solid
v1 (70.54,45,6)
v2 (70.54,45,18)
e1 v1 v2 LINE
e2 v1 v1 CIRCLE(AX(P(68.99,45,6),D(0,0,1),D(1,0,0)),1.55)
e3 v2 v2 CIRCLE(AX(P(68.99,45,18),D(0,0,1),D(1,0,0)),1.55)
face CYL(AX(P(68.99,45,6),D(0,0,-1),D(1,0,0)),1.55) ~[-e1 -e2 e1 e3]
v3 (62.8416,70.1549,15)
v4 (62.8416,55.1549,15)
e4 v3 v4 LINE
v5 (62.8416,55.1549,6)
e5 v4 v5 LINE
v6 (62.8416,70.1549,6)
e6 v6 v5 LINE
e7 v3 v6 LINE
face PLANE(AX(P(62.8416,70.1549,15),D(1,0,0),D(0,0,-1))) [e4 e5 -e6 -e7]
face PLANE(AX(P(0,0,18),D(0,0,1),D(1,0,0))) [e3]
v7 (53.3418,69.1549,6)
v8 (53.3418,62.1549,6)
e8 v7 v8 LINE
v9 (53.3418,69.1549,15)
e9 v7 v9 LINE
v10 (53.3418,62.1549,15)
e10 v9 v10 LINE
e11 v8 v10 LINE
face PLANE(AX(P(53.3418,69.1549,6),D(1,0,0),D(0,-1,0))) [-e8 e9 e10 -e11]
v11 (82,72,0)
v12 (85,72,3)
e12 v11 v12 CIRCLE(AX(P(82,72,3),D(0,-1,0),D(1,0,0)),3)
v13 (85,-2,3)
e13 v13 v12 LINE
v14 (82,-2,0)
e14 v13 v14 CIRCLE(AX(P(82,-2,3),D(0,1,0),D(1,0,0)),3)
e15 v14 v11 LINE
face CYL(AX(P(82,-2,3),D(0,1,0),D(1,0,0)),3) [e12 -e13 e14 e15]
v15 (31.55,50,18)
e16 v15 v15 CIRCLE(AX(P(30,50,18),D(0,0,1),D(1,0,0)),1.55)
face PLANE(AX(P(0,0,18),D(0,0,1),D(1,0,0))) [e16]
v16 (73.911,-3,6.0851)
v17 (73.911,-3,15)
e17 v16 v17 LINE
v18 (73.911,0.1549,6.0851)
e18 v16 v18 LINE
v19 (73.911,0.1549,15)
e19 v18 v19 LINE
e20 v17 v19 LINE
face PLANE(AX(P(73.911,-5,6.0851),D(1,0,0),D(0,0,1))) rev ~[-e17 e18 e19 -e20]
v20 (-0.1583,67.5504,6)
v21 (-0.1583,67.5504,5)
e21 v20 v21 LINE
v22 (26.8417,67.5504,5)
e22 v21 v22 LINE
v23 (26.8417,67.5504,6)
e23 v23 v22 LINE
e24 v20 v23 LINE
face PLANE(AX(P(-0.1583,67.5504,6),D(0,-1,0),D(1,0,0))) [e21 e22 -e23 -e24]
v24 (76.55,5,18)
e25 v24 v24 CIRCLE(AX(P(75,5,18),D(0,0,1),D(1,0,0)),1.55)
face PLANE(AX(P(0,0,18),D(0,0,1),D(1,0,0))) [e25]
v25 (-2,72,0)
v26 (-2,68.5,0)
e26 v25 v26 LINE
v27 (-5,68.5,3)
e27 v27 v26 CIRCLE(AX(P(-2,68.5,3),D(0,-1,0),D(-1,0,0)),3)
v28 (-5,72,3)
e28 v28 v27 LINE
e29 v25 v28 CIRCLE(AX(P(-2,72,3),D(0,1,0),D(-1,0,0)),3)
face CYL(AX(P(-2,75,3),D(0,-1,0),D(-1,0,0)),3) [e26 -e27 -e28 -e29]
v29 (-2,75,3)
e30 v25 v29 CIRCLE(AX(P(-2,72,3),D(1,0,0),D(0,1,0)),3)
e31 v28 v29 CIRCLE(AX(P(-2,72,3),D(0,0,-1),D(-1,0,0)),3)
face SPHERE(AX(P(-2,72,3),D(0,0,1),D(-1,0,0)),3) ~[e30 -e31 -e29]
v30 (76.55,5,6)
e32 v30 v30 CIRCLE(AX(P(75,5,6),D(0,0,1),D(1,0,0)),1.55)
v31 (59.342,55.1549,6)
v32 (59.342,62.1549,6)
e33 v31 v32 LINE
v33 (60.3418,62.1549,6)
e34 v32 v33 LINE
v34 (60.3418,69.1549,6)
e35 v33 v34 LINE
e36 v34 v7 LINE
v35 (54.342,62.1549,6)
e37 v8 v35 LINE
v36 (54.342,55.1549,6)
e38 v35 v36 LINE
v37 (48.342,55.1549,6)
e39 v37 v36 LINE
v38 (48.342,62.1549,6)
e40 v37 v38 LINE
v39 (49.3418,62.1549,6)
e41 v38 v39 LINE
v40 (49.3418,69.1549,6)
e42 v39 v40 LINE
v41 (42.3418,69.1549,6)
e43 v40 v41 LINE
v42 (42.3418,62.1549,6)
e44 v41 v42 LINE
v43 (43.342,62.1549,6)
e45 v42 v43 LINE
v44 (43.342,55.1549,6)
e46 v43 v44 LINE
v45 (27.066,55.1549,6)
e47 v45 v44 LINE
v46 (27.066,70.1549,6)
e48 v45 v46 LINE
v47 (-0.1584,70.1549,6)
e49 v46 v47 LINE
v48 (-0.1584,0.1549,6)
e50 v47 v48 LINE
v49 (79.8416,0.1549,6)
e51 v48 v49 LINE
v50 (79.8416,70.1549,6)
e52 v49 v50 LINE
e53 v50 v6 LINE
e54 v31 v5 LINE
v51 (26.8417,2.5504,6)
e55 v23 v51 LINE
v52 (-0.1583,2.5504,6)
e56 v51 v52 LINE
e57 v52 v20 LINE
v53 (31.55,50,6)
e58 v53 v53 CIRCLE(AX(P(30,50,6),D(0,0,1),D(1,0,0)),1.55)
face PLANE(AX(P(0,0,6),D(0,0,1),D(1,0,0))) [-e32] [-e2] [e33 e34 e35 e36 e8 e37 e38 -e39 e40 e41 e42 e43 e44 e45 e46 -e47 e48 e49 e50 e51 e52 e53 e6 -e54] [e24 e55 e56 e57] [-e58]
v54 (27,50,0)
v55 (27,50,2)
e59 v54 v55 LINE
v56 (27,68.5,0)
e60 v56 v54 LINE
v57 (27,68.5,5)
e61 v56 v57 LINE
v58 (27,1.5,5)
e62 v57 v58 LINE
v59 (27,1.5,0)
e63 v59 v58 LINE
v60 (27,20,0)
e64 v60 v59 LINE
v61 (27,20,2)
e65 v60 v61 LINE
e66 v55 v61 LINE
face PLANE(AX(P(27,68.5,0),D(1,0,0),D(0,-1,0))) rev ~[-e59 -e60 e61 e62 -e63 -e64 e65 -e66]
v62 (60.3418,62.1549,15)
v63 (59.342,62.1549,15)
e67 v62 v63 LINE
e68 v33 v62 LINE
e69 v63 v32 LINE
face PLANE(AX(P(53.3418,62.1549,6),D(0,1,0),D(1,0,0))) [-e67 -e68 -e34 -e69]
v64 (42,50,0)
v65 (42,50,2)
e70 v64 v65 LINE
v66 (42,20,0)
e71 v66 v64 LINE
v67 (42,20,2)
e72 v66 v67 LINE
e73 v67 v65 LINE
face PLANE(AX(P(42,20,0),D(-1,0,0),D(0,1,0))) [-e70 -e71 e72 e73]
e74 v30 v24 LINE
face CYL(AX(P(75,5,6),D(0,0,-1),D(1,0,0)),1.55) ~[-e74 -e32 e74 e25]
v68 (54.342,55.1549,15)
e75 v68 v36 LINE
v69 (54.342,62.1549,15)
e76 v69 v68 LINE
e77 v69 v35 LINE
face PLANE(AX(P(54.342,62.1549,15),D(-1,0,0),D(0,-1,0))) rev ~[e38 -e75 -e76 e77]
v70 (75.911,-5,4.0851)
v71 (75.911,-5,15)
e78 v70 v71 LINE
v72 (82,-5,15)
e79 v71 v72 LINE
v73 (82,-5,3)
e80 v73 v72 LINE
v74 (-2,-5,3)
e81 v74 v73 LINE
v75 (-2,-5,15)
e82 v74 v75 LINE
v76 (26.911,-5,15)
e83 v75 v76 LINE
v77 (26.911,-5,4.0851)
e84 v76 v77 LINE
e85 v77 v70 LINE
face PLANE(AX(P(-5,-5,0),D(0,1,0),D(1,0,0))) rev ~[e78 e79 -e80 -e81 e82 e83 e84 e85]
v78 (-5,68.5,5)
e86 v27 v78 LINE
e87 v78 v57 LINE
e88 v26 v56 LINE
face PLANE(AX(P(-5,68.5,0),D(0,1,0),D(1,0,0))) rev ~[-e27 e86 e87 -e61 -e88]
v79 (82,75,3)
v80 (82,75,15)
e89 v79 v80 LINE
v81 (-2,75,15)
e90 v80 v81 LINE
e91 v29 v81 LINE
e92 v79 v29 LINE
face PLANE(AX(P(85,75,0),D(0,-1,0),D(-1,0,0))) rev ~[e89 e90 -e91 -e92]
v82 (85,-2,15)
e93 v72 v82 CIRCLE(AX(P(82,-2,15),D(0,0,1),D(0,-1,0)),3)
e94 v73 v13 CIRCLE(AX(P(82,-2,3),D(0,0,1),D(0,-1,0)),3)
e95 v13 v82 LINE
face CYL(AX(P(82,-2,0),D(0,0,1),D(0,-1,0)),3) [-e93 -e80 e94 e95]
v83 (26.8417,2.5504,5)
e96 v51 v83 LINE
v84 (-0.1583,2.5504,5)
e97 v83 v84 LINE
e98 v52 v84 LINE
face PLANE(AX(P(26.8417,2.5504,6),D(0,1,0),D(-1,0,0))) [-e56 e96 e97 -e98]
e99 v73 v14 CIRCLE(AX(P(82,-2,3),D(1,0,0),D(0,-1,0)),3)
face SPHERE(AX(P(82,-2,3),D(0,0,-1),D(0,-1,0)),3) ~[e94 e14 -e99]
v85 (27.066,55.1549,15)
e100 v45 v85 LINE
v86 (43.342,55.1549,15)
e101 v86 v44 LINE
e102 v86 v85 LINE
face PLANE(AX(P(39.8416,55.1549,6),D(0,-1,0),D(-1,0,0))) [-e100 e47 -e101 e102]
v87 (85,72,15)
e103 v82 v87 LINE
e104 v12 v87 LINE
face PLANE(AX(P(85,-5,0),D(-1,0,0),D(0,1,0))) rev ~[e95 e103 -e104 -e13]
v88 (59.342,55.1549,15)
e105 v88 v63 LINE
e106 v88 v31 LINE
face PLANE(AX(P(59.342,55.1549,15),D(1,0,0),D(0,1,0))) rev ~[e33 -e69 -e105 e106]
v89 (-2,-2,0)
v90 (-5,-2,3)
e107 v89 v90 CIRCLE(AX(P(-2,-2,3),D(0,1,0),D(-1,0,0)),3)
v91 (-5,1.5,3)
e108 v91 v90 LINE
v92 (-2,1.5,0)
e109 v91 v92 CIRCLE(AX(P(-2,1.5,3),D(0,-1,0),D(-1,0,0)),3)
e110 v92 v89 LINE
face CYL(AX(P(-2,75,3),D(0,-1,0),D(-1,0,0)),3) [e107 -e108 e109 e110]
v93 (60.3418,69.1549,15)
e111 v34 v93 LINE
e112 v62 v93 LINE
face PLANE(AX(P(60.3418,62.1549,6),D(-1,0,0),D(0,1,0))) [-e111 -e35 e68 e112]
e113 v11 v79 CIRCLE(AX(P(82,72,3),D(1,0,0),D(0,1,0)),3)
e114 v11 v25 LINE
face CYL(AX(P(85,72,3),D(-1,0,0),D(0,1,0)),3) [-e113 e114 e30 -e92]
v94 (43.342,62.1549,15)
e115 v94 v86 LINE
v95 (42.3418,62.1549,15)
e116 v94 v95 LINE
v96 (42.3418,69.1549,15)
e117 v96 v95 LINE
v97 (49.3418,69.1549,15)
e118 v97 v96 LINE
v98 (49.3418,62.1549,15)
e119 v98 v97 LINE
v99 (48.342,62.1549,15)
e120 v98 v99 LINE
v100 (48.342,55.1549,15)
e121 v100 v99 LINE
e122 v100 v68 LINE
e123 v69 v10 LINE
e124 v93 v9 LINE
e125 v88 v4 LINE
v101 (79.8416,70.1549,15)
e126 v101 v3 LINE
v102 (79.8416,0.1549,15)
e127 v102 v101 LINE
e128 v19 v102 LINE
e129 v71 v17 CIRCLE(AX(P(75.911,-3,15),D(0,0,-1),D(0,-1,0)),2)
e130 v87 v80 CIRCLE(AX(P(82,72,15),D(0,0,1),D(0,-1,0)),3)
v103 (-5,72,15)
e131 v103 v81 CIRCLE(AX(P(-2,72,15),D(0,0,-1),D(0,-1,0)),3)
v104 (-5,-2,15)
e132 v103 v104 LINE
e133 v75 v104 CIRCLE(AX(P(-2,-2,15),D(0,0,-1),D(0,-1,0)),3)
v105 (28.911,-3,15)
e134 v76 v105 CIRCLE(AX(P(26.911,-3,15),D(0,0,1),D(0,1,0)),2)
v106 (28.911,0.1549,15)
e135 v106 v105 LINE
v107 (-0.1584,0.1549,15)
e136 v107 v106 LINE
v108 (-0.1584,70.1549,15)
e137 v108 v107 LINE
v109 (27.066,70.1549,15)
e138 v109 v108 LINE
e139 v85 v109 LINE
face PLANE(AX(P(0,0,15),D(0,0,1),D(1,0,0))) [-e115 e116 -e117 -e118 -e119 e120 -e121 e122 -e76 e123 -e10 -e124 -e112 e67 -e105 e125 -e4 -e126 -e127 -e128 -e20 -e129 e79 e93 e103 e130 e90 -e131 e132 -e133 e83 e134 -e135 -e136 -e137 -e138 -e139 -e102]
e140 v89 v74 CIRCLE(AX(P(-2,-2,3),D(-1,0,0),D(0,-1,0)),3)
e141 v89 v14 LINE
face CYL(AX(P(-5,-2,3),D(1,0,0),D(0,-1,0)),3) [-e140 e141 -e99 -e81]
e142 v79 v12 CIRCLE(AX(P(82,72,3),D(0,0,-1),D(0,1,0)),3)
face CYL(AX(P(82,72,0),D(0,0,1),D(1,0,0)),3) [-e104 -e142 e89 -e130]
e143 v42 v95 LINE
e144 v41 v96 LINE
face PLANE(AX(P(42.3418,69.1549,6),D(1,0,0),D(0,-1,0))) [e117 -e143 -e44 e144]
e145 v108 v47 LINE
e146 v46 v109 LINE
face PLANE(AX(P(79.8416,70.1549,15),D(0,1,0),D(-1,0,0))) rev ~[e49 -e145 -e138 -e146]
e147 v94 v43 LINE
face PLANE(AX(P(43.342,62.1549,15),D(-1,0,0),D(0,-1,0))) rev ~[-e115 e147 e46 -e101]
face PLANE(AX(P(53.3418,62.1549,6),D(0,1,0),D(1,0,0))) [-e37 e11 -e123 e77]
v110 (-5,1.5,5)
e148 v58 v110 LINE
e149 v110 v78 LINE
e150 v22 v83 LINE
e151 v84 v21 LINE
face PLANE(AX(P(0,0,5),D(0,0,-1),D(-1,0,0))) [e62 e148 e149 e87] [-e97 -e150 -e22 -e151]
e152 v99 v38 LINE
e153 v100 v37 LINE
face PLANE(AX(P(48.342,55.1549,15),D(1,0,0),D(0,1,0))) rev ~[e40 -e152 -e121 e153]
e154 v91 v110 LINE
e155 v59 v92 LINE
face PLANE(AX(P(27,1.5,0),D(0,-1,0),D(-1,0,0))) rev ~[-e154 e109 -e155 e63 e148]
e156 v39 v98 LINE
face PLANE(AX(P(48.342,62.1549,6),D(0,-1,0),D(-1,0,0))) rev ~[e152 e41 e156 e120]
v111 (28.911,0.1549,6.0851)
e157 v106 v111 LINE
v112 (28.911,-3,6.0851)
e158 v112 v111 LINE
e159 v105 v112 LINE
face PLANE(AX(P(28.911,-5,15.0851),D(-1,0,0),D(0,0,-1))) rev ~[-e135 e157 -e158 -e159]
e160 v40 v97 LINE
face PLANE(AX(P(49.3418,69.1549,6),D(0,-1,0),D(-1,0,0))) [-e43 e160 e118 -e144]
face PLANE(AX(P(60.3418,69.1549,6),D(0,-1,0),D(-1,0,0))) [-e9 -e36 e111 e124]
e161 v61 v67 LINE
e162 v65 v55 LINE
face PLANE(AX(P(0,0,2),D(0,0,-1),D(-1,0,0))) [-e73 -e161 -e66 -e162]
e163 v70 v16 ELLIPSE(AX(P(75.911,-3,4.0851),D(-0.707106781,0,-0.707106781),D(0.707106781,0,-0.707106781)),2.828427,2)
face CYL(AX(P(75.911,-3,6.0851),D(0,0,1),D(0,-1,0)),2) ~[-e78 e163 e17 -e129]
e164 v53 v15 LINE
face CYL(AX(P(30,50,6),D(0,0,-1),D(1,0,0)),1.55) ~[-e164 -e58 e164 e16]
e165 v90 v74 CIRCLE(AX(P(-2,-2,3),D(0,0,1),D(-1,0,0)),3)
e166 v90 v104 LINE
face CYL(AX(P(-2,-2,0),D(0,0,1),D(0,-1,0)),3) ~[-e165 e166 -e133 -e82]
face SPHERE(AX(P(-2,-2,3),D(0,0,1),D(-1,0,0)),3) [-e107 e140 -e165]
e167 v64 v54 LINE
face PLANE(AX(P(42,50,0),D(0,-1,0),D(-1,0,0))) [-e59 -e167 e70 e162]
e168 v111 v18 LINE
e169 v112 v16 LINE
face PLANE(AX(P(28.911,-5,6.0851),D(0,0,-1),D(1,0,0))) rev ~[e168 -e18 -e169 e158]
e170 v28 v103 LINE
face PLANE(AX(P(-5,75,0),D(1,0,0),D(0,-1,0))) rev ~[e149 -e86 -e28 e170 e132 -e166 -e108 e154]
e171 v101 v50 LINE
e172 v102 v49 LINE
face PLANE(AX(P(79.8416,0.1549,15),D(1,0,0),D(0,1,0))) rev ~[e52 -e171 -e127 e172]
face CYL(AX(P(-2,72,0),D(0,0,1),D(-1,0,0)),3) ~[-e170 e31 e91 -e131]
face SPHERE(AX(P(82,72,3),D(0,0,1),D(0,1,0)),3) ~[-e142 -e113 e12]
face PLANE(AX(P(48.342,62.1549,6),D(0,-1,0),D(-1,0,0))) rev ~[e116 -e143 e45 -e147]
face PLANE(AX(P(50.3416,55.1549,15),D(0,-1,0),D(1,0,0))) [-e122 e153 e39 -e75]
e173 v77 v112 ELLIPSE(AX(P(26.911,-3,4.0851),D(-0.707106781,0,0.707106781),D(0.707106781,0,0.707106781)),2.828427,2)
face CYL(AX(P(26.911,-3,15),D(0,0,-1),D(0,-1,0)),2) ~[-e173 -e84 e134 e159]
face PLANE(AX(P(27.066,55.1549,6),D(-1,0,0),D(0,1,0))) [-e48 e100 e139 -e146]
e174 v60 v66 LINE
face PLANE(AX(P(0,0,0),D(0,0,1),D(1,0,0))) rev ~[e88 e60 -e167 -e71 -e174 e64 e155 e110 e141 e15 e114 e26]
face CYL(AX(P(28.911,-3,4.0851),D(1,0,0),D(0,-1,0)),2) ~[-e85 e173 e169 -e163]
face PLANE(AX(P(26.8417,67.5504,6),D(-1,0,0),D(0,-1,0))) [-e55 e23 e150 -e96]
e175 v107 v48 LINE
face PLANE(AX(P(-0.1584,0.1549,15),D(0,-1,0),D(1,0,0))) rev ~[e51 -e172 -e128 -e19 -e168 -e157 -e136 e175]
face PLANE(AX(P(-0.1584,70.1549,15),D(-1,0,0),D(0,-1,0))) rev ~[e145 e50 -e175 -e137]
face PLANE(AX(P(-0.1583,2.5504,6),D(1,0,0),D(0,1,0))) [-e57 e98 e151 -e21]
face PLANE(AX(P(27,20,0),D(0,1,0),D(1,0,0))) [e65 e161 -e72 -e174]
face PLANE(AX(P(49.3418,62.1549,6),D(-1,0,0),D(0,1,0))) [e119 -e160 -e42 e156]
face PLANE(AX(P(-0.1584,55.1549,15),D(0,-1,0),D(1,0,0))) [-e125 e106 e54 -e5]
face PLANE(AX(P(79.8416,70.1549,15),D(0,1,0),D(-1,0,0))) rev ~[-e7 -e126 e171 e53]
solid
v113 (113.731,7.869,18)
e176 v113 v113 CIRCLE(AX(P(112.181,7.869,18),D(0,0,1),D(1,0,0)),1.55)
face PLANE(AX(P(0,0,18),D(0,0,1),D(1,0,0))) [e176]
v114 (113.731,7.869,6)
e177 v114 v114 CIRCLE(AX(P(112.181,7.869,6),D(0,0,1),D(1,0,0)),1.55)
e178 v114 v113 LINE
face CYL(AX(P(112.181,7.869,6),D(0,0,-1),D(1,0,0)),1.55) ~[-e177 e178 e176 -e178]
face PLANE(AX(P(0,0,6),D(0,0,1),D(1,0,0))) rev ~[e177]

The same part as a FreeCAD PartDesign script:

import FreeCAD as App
import Part
import Sketcher
from FreeCAD import Vector
Q = App.Units.Quantity


def edges_at(feature, points):
    """Names of the edges that pass closest to the given points."""
    edges = feature.Shape.Edges
    near = lambda p: min(range(len(edges)), key=lambda i: edges[i].distToShape(Part.Vertex(*p))[0])
    return sorted({f"Edge{near(p) + 1}" for p in points})


def add_polygon(sketch, points):
    """Adds a closed chain of lines whose ends are joined by coincident constraints."""
    first, n = sketch.GeometryCount, len(points)
    for a, b in zip(points, points[1:] + points[:1]):
        sketch.addGeometry(Part.LineSegment(App.Vector(*a, 0), App.Vector(*b, 0)), False)
    for i in range(n):
        sketch.addConstraint(Sketcher.Constraint("Coincident", first + i, 2, first + (i + 1) % n, 1))

doc = App.newDocument("Part")
body = doc.addObject("PartDesign::Body", "Body")
body.AllowCompound = True

sketch1 = doc.addObject("Sketcher::SketchObject", "Sketch")
body.addObject(sketch1)
sketch1.AttachmentSupport = (doc.XY_Plane, [""])
sketch1.MapMode = "FlatFace"
add_polygon(sketch1, [(-5, 75), (-5, -5), (85, -5), (85, 75)])
sketch1.addConstraint([
    Sketcher.Constraint("Vertical", 0),
    Sketcher.Constraint("Horizontal", 1),
    Sketcher.Constraint("Vertical", 2),
    Sketcher.Constraint("Horizontal", 3),
    Sketcher.Constraint("DistanceX", 1, 1, 1, 2, Q("90 mm")),
    Sketcher.Constraint("DistanceY", 0, 2, 0, 1, Q("80 mm")),
    Sketcher.Constraint("DistanceX", 0, 2, -1, 1, Q("5 mm")),
    Sketcher.Constraint("DistanceY", 0, 2, -1, 1, Q("5 mm")),
])
pad1 = doc.addObject("PartDesign::Pad", "Pad")
body.addObject(pad1)
pad1.Profile = sketch1
pad1.Length = 15

sketch2 = doc.addObject("Sketcher::SketchObject", "Sketch001")
body.addObject(sketch2)
sketch2.AttachmentSupport = (doc.XY_Plane, [""])
sketch2.MapMode = "FlatFace"
sketch2.AttachmentOffset = App.Placement(Vector(0, 0, 15), App.Rotation())
add_polygon(sketch2, [(0, 70), (0, 0), (80, 0), (80, 70)])
sketch2.addConstraint([
    Sketcher.Constraint("Vertical", 0),
    Sketcher.Constraint("Horizontal", 1),
    Sketcher.Constraint("Vertical", 2),
    Sketcher.Constraint("Horizontal", 3),
    Sketcher.Constraint("DistanceX", 1, 1, 1, 2, Q("80 mm")),
    Sketcher.Constraint("DistanceY", 0, 2, 0, 1, Q("70 mm")),
    Sketcher.Constraint("DistanceY", -1, 1, 0, 2, Q("0.155 mm")),
    Sketcher.Constraint("DistanceX", 0, 2, -1, 1, Q("0.1584 mm")),
])
pocket1 = doc.addObject("PartDesign::Pocket", "Pocket")
body.addObject(pocket1)
pocket1.Profile = sketch2
pocket1.Length = 9

sketch3 = doc.addObject("Sketcher::SketchObject", "Sketch002")
body.addObject(sketch3)
sketch3.AttachmentSupport = (doc.XY_Plane, [""])
sketch3.MapMode = "FlatFace"
sketch3.AttachmentOffset = App.Placement(Vector(0, 0, 6), App.Rotation())
sketch3.addGeometry([
    Part.Circle(Vector(75, 5, 0), Vector(0, 0, 1), 1.6),
    Part.Circle(Vector(30, 50, 0), Vector(0, 0, 1), 1.6),
    Part.Circle(Vector(69, 45, 0), Vector(0, 0, 1), 1.6),
    Part.Circle(Vector(112.2, 7.9, 0), Vector(0, 0, 1), 1.6),
], False)
sketch3.addConstraint([
    Sketcher.Constraint("Equal", 0, 1),
    Sketcher.Constraint("Equal", 1, 2),
    Sketcher.Constraint("Equal", 2, 3),
    Sketcher.Constraint("Diameter", 0, Q("3.1 mm")),
    Sketcher.Constraint("DistanceX", -1, 1, 0, 3, Q("75 mm")),
    Sketcher.Constraint("DistanceY", -1, 1, 0, 3, Q("5 mm")),
    Sketcher.Constraint("DistanceX", -1, 1, 1, 3, Q("30 mm")),
    Sketcher.Constraint("DistanceY", -1, 1, 1, 3, Q("50 mm")),
    Sketcher.Constraint("DistanceY", -1, 1, 2, 3, Q("45 mm")),
    Sketcher.Constraint("DistanceX", -1, 1, 2, 3, Q("68.99 mm")),
    Sketcher.Constraint("DistanceX", -1, 1, 3, 3, Q("112.181 mm")),
    Sketcher.Constraint("DistanceY", -1, 1, 3, 3, Q("7.869 mm")),
])
pad2 = doc.addObject("PartDesign::Pad", "Pad001")
body.addObject(pad2)
pad2.Profile = sketch3
pad2.Length = 12

sketch4 = doc.addObject("Sketcher::SketchObject", "Sketch003")
body.addObject(sketch4)
sketch4.AttachmentSupport = (doc.XY_Plane, [""])
sketch4.MapMode = "FlatFace"
sketch4.AttachmentOffset = App.Placement(Vector(0, 0, 6), App.Rotation())
add_polygon(sketch4, [(27, 68), (0, 68), (0, 3), (27, 3)])
sketch4.addConstraint([
    Sketcher.Constraint("Horizontal", 0),
    Sketcher.Constraint("Vertical", 1),
    Sketcher.Constraint("Horizontal", 2),
    Sketcher.Constraint("Vertical", 3),
    Sketcher.Constraint("DistanceX", 0, 2, 0, 1, Q("27 mm")),
    Sketcher.Constraint("DistanceY", 1, 2, 1, 1, Q("65 mm")),
    Sketcher.Constraint("DistanceX", 0, 2, -1, 1, Q("0.1583 mm")),
    Sketcher.Constraint("DistanceY", -1, 1, 0, 2, Q("67.5504 mm")),
])
pocket2 = doc.addObject("PartDesign::Pocket", "Pocket001")
body.addObject(pocket2)
pocket2.Profile = sketch4
pocket2.Length = 4

sketch5 = doc.addObject("Sketcher::SketchObject", "Sketch004")
body.addObject(sketch5)
sketch5.AttachmentSupport = (doc.XY_Plane, [""])
sketch5.MapMode = "FlatFace"
sketch5.AttachmentOffset = App.Placement(Vector(0, 0, 2), App.Rotation())
add_polygon(sketch5, [(20, 65), (7, 65), (7, 54), (20, 54)])
sketch5.addConstraint([
    Sketcher.Constraint("Horizontal", 0),
    Sketcher.Constraint("Vertical", 1),
    Sketcher.Constraint("Horizontal", 2),
    Sketcher.Constraint("Vertical", 3),
    Sketcher.Constraint("DistanceX", 0, 2, 0, 1, Q("13 mm")),
    Sketcher.Constraint("DistanceX", -1, 1, 0, 2, Q("7 mm")),
    Sketcher.Constraint("DistanceY", 1, 2, 1, 1, Q("10.115 mm")),
    Sketcher.Constraint("DistanceY", -1, 1, 0, 2, Q("64.5504 mm")),
])
pocket3 = doc.addObject("PartDesign::Pocket", "Pocket002")
body.addObject(pocket3)
pocket3.Profile = sketch5
pocket3.Length = 3

sketch6 = doc.addObject("Sketcher::SketchObject", "Sketch005")
body.addObject(sketch6)
sketch6.AttachmentSupport = (doc.XZ_Plane, [""])
sketch6.MapMode = "FlatFace"
sketch6.AttachmentOffset = App.Placement(Vector(0, 0, -70.1549), App.Rotation())
add_polygon(sketch6, [(61, 15), (52, 15), (52, 6), (61, 6)])
add_polygon(sketch6, [(50, 15), (41, 15), (41, 6), (50, 6)])
sketch6.addConstraint([
    Sketcher.Constraint("Horizontal", 0),
    Sketcher.Constraint("Vertical", 1),
    Sketcher.Constraint("Horizontal", 2),
    Sketcher.Constraint("Vertical", 3),
    Sketcher.Constraint("Horizontal", 4),
    Sketcher.Constraint("Vertical", 5),
    Sketcher.Constraint("Horizontal", 6),
    Sketcher.Constraint("Vertical", 7),
    Sketcher.Constraint("Horizontal", 3, 2, 4, 2),
    Sketcher.Constraint("Horizontal", 2, 2, 5, 2),
    Sketcher.Constraint("Equal", 2, 4),
    Sketcher.Constraint("Equal", 6, 1),
    Sketcher.Constraint("DistanceX", 0, 2, 0, 1, Q("9 mm")),
    Sketcher.Constraint("DistanceY", -1, 1, 0, 2, Q("15 mm")),
    Sketcher.Constraint("DistanceX", 4, 2, 0, 2, Q("11 mm")),
    Sketcher.Constraint("DistanceX", -1, 1, 0, 2, Q("52.3416 mm")),
])
pad3 = doc.addObject("PartDesign::Pad", "Pad002")
body.addObject(pad3)
pad3.Profile = sketch6
pad3.Length = 15

sketch7 = doc.addObject("Sketcher::SketchObject", "Sketch006")
body.addObject(sketch7)
sketch7.AttachmentSupport = (doc.XY_Plane, [""])
sketch7.MapMode = "FlatFace"
sketch7.AttachmentOffset = App.Placement(Vector(0, 0, 15), App.Rotation())
add_polygon(sketch7, [(43, 55), (48, 55), (48, 62), (43, 62)])
sketch7.addConstraint([
    Sketcher.Constraint("Horizontal", 0),
    Sketcher.Constraint("Vertical", 1),
    Sketcher.Constraint("Horizontal", 2),
    Sketcher.Constraint("Vertical", 3),
    Sketcher.Constraint("DistanceX", 0, 1, 0, 2, Q("5 mm")),
    Sketcher.Constraint("DistanceY", 1, 1, 1, 2, Q("7 mm")),
    Sketcher.Constraint("DistanceX", -1, 1, 0, 2, Q("48.342 mm")),
    Sketcher.Constraint("DistanceY", -1, 1, 0, 2, Q("55.155 mm")),
])
pocket4 = doc.addObject("PartDesign::Pocket", "Pocket003")
body.addObject(pocket4)
pocket4.Profile = sketch7
pocket4.Length = 9

sketch8 = doc.addObject("Sketcher::SketchObject", "Sketch007")
body.addObject(sketch8)
sketch8.AttachmentSupport = (doc.XY_Plane, [""])
sketch8.MapMode = "FlatFace"
sketch8.AttachmentOffset = App.Placement(Vector(0, 0, 15), App.Rotation())
add_polygon(sketch8, [(54, 55), (59, 55), (59, 62), (54, 62)])
sketch8.addConstraint([
    Sketcher.Constraint("Horizontal", 0),
    Sketcher.Constraint("Vertical", 1),
    Sketcher.Constraint("Horizontal", 2),
    Sketcher.Constraint("Vertical", 3),
    Sketcher.Constraint("DistanceX", 0, 1, 0, 2, Q("5 mm")),
    Sketcher.Constraint("DistanceY", 1, 1, 1, 2, Q("7 mm")),
    Sketcher.Constraint("DistanceX", -1, 1, 0, 2, Q("59.342 mm")),
    Sketcher.Constraint("DistanceY", -1, 1, 0, 2, Q("55.155 mm")),
])
pocket5 = doc.addObject("PartDesign::Pocket", "Pocket004")
body.addObject(pocket5)
pocket5.Profile = sketch8
pocket5.Length = 9

sketch9 = doc.addObject("Sketcher::SketchObject", "Sketch008")
body.addObject(sketch9)
sketch9.AttachmentSupport = (doc.XY_Plane, [""])
sketch9.MapMode = "FlatFace"
sketch9.AttachmentOffset = App.Placement(Vector(0, 0, 6), App.Rotation())
add_polygon(sketch9, [(42, 62), (49, 62), (49, 69), (42, 69)])
add_polygon(sketch9, [(53, 62), (60, 62), (60, 69), (53, 69)])
sketch9.addConstraint([
    Sketcher.Constraint("Horizontal", 0),
    Sketcher.Constraint("Vertical", 1),
    Sketcher.Constraint("Horizontal", 2),
    Sketcher.Constraint("Vertical", 3),
    Sketcher.Constraint("Horizontal", 4),
    Sketcher.Constraint("Vertical", 5),
    Sketcher.Constraint("Horizontal", 6),
    Sketcher.Constraint("Vertical", 7),
    Sketcher.Constraint("Horizontal", 3, 2, 4, 2),
    Sketcher.Constraint("Horizontal", 2, 2, 5, 2),
    Sketcher.Constraint("Equal", 2, 4),
    Sketcher.Constraint("Equal", 6, 1),
    Sketcher.Constraint("DistanceX", 0, 1, 0, 2, Q("7 mm")),
    Sketcher.Constraint("DistanceX", 0, 2, 4, 2, Q("11 mm")),
    Sketcher.Constraint("DistanceY", -1, 1, 0, 2, Q("62.155 mm")),
    Sketcher.Constraint("DistanceX", -1, 1, 0, 2, Q("49.3418 mm")),
])
pocket6 = doc.addObject("PartDesign::Pocket", "Pocket005")
body.addObject(pocket6)
pocket6.Profile = sketch9
pocket6.Length = 9
pocket6.Reversed = True

sketch10 = doc.addObject("Sketcher::SketchObject", "Sketch009")
body.addObject(sketch10)
sketch10.AttachmentSupport = (doc.XZ_Plane, [""])
sketch10.MapMode = "FlatFace"
sketch10.AttachmentOffset = App.Placement(Vector(0, 0, -70.1549), App.Rotation())
add_polygon(sketch10, [(52.3, 15), (50.3, 15), (50.3, 6), (52.3, 6)])
sketch10.addConstraint([
    Sketcher.Constraint("Horizontal", 0),
    Sketcher.Constraint("Vertical", 1),
    Sketcher.Constraint("Horizontal", 2),
    Sketcher.Constraint("Vertical", 3),
    Sketcher.Constraint("DistanceX", 0, 2, 0, 1, Q("2 mm")),
    Sketcher.Constraint("DistanceY", 1, 2, 1, 1, Q("9 mm")),
    Sketcher.Constraint("DistanceY", -1, 1, 0, 2, Q("15 mm")),
    Sketcher.Constraint("DistanceX", -1, 1, 0, 2, Q("50.3416 mm")),
])
pad4 = doc.addObject("PartDesign::Pad", "Pad003")
body.addObject(pad4)
pad4.Profile = sketch10
pad4.Length = 15

sketch11 = doc.addObject("Sketcher::SketchObject", "Sketch010")
body.addObject(sketch11)
sketch11.AttachmentSupport = (doc.XZ_Plane, [""])
sketch11.MapMode = "FlatFace"
sketch11.AttachmentOffset = App.Placement(Vector(0, 0, -70.1549), App.Rotation())
add_polygon(sketch11, [(39.8, 6), (41.3, 6), (41.3, 15), (39.8, 15)])
add_polygon(sketch11, [(61.3, 15), (61.3, 6), (62.8, 6), (62.8, 15)])
sketch11.addConstraint([
    Sketcher.Constraint("Horizontal", 0),
    Sketcher.Constraint("Vertical", 1),
    Sketcher.Constraint("Horizontal", 2),
    Sketcher.Constraint("Vertical", 3),
    Sketcher.Constraint("Vertical", 4),
    Sketcher.Constraint("Horizontal", 5),
    Sketcher.Constraint("Vertical", 6),
    Sketcher.Constraint("Horizontal", 7),
    Sketcher.Constraint("Horizontal", 3, 2, 4, 2),
    Sketcher.Constraint("Horizontal", 2, 2, 6, 2),
    Sketcher.Constraint("Equal", 2, 5),
    Sketcher.Constraint("DistanceX", 0, 1, 0, 2, Q("1.5 mm")),
    Sketcher.Constraint("DistanceY", 1, 1, 1, 2, Q("9 mm")),
    Sketcher.Constraint("DistanceY", -1, 1, 0, 2, Q("6 mm")),
    Sketcher.Constraint("DistanceX", 0, 2, 4, 2, Q("20 mm")),
    Sketcher.Constraint("DistanceX", -1, 1, 0, 2, Q("41.3416 mm")),
])
pad5 = doc.addObject("PartDesign::Pad", "Pad004")
body.addObject(pad5)
pad5.Profile = sketch11
pad5.Length = 15

sketch12 = doc.addObject("Sketcher::SketchObject", "Sketch011")
body.addObject(sketch12)
sketch12.AttachmentSupport = (doc.XY_Plane, [""])
sketch12.MapMode = "FlatFace"
sketch12.AttachmentOffset = App.Placement(Vector(0, 0, 6), App.Rotation())
add_polygon(sketch12, [(40, 70), (27, 70), (27, 55), (40, 55)])
sketch12.addConstraint([
    Sketcher.Constraint("Horizontal", 0),
    Sketcher.Constraint("Vertical", 1),
    Sketcher.Constraint("Horizontal", 2),
    Sketcher.Constraint("Vertical", 3),
    Sketcher.Constraint("DistanceY", 1, 2, 1, 1, Q("15 mm")),
    Sketcher.Constraint("DistanceX", 0, 2, 0, 1, Q("12.7756 mm")),
    Sketcher.Constraint("DistanceX", -1, 1, 0, 2, Q("27.066 mm")),
    Sketcher.Constraint("DistanceY", -1, 1, 0, 2, Q("70.155 mm")),
])
pad6 = doc.addObject("PartDesign::Pad", "Pad005")
body.addObject(pad6)
pad6.Profile = sketch12
pad6.Length = 9
doc.recompute()

fillet = doc.addObject("PartDesign::Fillet", "Fillet")
body.addObject(fillet)
fillet.Base = (pad6, edges_at(pad6, [(85, -5, 7.5)]))
fillet.Radius = 3
doc.recompute()

fillet2 = doc.addObject("PartDesign::Fillet", "Fillet001")
body.addObject(fillet2)
fillet2.Base = (fillet, edges_at(fillet, [
    (85, 75, 7.5),
    (-5, 75, 7.5),
    (-5, -5, 7.5),
    (-5, 35, 0),
    (40, 75, 0),
    (84.121, -4.121, 0),
    (38.5, -5, 0),
    (85, 36.5, 0),
]))
fillet2.Radius = 3

sketch13 = doc.addObject("Sketcher::SketchObject", "Sketch012")
body.addObject(sketch13)
sketch13.AttachmentSupport = (doc.XZ_Plane, [""])
sketch13.MapMode = "FlatFace"
sketch13.AttachmentOffset = App.Placement(Vector(0, 0, 5), App.Rotation())
add_polygon(sketch13, [(74, 6), (74, 15), (29, 15), (29, 6)])
sketch13.addConstraint([
    Sketcher.Constraint("Vertical", 0),
    Sketcher.Constraint("Horizontal", 1),
    Sketcher.Constraint("Vertical", 2),
    Sketcher.Constraint("Horizontal", 3),
    Sketcher.Constraint("DistanceX", 1, 2, 1, 1, Q("45 mm")),
    Sketcher.Constraint("DistanceY", 0, 1, 0, 2, Q("9 mm")),
    Sketcher.Constraint("DistanceX", -1, 1, 0, 2, Q("73.911 mm")),
    Sketcher.Constraint("DistanceY", -1, 1, 0, 2, Q("15.085 mm")),
])
pocket7 = doc.addObject("PartDesign::Pocket", "Pocket006")
body.addObject(pocket7)
pocket7.Profile = sketch13
pocket7.Length = 6
doc.recompute()

fillet3 = doc.addObject("PartDesign::Fillet", "Fillet002")
body.addObject(fillet3)
fillet3.Base = (pocket7, edges_at(pocket7, [(51.411, -5, 6.085), (28.911, -5, 10.543), (73.911, -5, 10.543)]))
fillet3.Radius = 2

sketch14 = doc.addObject("Sketcher::SketchObject", "Sketch013")
body.addObject(sketch14)
sketch14.AttachmentSupport = (doc.XY_Plane, [""])
sketch14.MapMode = "FlatFace"
add_polygon(sketch14, [(27, 68), (27, 2), (-5, 2), (-5, 68)])
sketch14.addConstraint([
    Sketcher.Constraint("Vertical", 0),
    Sketcher.Constraint("Horizontal", 1),
    Sketcher.Constraint("Vertical", 2),
    Sketcher.Constraint("Horizontal", 3),
    Sketcher.Constraint("DistanceX", 1, 2, 1, 1, Q("32 mm")),
    Sketcher.Constraint("DistanceY", 0, 2, 0, 1, Q("67 mm")),
    Sketcher.Constraint("DistanceX", -1, 1, 0, 2, Q("27 mm")),
    Sketcher.Constraint("DistanceY", -1, 1, 0, 2, Q("1.5 mm")),
])
pocket8 = doc.addObject("PartDesign::Pocket", "Pocket007")
body.addObject(pocket8)
pocket8.Profile = sketch14
pocket8.Length = 5
pocket8.Reversed = True

sketch15 = doc.addObject("Sketcher::SketchObject", "Sketch014")
body.addObject(sketch15)
sketch15.AttachmentSupport = (doc.XY_Plane, [""])
sketch15.MapMode = "FlatFace"
add_polygon(sketch15, [(42, 20), (27, 20), (27, 50), (42, 50)])
sketch15.addConstraint([
    Sketcher.Constraint("Horizontal", 0),
    Sketcher.Constraint("Vertical", 1),
    Sketcher.Constraint("Horizontal", 2),
    Sketcher.Constraint("Vertical", 3),
    Sketcher.Constraint("DistanceX", 0, 2, 0, 1, Q("15 mm")),
    Sketcher.Constraint("DistanceY", 1, 1, 1, 2, Q("30 mm")),
    Sketcher.Constraint("DistanceX", -1, 1, 0, 2, Q("27 mm")),
    Sketcher.Constraint("DistanceY", -1, 1, 0, 2, Q("20 mm")),
])
pocket9 = doc.addObject("PartDesign::Pocket", "Pocket008")
body.addObject(pocket9)
pocket9.Profile = sketch15
pocket9.Length = 2
pocket9.Reversed = True

doc.recompute()
